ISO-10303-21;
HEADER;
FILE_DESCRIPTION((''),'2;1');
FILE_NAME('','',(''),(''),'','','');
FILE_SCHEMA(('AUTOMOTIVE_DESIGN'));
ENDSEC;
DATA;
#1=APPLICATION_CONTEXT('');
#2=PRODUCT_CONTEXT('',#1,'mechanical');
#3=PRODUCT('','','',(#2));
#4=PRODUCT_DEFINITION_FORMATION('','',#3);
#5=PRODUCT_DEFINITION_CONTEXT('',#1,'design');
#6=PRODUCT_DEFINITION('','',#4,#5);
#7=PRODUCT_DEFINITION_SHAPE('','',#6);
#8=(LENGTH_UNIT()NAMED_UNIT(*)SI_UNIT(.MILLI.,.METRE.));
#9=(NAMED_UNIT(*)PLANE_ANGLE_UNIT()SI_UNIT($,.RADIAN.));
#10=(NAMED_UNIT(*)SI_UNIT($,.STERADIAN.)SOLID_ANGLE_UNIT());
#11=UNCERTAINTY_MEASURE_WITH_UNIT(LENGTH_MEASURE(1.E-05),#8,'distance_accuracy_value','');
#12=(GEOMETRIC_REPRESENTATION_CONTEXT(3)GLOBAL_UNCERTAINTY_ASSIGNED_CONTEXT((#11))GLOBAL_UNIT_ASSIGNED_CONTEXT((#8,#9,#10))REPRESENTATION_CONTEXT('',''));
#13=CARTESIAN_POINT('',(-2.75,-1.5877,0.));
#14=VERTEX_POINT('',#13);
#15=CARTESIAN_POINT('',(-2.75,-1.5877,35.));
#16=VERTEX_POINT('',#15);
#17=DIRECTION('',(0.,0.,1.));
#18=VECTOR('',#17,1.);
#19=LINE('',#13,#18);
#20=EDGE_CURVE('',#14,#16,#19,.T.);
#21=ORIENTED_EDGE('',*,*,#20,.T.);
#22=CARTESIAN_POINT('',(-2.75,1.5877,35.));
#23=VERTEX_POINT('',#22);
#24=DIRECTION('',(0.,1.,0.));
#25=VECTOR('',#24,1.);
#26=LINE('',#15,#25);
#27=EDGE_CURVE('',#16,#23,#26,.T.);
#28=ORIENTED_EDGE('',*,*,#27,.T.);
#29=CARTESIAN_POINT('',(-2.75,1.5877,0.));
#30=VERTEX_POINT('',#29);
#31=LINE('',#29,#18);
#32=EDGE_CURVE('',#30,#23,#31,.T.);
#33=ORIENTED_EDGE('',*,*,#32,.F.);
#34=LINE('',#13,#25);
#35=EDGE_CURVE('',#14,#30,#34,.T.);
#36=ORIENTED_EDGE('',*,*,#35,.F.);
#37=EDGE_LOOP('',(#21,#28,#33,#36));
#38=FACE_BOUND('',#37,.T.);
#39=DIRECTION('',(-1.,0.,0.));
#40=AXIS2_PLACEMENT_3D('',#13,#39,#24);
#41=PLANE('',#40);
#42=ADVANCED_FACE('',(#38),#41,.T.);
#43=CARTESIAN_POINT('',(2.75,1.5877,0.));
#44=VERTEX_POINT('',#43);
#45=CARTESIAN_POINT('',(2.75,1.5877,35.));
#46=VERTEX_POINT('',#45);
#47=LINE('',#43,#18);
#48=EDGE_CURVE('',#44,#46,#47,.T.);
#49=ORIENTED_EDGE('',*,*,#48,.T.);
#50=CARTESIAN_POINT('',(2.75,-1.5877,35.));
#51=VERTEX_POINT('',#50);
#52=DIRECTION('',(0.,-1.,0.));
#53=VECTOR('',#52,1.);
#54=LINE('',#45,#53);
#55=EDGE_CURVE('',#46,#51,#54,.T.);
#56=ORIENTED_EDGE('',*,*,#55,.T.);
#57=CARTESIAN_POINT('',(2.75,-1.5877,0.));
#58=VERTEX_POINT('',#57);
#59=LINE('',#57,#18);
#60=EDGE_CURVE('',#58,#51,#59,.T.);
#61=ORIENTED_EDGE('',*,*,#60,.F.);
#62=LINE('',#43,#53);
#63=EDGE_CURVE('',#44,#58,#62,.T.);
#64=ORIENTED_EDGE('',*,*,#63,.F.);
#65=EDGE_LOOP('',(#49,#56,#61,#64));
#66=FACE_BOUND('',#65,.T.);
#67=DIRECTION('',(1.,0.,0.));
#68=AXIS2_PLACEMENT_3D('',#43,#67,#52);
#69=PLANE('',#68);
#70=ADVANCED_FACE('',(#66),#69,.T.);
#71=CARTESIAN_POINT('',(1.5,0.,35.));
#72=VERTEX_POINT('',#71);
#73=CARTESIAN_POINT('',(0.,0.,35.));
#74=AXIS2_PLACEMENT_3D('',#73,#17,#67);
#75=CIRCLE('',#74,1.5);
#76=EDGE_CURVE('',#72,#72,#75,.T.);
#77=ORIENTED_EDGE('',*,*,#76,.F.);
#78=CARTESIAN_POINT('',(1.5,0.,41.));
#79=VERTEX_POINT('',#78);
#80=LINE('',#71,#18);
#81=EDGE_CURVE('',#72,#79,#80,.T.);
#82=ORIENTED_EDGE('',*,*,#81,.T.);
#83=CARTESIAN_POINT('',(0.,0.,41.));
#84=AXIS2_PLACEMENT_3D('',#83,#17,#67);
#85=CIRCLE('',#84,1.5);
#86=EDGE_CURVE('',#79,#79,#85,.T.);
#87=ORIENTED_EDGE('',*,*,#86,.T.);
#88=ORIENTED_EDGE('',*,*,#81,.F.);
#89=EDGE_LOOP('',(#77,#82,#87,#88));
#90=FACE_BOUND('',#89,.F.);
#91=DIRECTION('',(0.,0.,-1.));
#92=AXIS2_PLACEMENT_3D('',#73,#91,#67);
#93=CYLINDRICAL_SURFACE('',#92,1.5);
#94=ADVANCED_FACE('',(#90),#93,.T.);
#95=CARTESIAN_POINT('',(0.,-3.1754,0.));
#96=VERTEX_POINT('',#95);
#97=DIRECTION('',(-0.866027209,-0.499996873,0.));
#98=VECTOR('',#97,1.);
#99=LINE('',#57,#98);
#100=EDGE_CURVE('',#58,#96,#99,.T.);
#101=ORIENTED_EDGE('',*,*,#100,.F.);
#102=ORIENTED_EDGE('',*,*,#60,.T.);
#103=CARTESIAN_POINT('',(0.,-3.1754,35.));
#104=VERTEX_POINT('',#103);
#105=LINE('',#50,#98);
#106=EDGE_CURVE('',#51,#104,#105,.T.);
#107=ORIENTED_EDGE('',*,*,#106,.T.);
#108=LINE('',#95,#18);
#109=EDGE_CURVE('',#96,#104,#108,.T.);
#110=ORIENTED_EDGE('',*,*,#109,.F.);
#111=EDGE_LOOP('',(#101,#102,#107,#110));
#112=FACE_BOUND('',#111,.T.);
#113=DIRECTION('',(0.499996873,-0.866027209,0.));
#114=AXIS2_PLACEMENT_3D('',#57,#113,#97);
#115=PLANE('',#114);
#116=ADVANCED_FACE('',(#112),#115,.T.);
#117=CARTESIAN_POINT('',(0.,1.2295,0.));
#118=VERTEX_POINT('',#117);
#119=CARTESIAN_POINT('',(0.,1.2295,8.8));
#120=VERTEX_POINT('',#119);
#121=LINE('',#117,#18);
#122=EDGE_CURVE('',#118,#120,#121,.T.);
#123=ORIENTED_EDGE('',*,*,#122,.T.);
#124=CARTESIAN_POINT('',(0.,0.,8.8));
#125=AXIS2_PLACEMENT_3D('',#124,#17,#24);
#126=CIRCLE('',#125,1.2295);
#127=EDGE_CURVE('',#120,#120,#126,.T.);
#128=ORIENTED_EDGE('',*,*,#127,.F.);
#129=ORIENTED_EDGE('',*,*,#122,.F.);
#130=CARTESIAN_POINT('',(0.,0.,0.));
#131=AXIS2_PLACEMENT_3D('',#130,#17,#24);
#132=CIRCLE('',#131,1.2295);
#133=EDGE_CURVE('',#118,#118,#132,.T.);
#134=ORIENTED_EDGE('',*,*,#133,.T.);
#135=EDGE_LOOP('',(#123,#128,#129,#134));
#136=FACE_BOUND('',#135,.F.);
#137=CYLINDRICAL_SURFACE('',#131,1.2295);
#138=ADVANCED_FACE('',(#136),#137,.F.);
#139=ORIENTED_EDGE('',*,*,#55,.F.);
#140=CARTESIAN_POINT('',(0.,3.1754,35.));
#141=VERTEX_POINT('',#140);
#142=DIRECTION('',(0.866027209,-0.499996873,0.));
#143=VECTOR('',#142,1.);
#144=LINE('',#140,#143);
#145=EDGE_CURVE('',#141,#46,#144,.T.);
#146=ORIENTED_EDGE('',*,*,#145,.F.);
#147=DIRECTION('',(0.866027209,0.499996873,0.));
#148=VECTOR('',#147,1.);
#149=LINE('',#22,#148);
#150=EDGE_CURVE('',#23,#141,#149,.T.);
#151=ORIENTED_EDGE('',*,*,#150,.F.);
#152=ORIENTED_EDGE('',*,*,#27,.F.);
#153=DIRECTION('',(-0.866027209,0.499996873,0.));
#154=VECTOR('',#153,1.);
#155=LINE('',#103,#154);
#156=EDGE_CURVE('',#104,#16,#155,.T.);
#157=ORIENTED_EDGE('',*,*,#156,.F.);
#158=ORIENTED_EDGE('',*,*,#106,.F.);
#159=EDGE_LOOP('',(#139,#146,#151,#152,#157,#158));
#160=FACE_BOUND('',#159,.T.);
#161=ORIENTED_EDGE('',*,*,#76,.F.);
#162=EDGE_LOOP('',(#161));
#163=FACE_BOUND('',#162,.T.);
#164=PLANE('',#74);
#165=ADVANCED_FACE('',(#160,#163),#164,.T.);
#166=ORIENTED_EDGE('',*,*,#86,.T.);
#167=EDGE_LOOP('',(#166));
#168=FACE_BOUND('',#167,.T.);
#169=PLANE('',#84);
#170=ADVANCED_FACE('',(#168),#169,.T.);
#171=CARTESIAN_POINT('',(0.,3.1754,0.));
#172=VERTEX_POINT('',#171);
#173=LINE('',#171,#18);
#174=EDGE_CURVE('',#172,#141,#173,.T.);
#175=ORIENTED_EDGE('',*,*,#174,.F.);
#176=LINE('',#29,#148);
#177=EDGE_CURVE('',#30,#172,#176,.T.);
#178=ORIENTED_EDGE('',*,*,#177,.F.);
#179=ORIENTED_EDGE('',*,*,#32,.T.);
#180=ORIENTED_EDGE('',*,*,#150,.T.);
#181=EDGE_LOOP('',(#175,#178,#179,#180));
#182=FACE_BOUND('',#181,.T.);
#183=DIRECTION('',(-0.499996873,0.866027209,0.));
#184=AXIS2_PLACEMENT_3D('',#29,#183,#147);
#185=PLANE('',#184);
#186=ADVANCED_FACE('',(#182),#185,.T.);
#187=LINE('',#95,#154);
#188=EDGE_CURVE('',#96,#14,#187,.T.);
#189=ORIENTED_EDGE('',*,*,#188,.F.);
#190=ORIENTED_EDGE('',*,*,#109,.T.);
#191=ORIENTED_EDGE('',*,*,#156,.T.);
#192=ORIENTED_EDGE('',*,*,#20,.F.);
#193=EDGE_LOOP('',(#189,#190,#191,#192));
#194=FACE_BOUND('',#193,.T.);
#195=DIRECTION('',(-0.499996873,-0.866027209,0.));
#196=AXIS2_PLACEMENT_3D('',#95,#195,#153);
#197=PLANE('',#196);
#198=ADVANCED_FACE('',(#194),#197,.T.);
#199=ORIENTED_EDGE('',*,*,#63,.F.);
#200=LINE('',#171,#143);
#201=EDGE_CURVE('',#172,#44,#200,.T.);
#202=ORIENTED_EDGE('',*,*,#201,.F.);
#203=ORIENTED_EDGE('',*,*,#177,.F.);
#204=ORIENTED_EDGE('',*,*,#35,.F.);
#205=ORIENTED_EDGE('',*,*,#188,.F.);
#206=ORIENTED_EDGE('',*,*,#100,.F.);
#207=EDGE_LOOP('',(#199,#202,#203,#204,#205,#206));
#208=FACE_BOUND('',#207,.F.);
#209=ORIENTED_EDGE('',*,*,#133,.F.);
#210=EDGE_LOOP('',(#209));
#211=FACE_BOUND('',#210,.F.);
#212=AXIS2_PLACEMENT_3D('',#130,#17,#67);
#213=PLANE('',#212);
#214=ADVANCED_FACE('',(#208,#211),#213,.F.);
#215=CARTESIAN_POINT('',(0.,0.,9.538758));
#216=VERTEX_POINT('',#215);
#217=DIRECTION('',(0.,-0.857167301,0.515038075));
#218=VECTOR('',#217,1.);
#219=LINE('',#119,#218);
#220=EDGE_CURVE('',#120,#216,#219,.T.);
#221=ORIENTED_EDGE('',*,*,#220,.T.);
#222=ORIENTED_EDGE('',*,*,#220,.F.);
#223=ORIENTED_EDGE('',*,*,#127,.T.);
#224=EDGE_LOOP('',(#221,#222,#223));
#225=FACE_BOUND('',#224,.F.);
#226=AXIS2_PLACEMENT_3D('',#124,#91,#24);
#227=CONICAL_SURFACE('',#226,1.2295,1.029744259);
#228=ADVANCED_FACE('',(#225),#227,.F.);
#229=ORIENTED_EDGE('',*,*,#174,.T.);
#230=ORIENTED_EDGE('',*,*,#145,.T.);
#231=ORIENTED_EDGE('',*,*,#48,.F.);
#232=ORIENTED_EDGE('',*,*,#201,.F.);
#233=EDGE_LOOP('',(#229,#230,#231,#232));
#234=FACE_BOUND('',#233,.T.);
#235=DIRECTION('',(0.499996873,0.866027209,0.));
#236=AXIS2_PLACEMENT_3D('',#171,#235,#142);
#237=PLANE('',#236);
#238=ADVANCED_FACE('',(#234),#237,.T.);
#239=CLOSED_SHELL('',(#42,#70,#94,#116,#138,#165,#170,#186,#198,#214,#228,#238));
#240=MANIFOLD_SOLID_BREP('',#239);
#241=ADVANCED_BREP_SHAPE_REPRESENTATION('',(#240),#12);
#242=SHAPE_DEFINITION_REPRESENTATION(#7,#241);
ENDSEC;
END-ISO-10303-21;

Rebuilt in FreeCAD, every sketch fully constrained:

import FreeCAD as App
import Part
import Sketcher
from FreeCAD import Vector
Q = App.Units.Quantity

doc = App.newDocument("Part")
body = doc.addObject("PartDesign::Body", "Body")

sketch1 = body.newObject("Sketcher::SketchObject", "Sketch")
sketch1.AttachmentSupport = (doc.getObject("XY_Plane"), [""])
sketch1.MapMode = "FlatFace"
sketch1.addGeometry([
    Part.LineSegment(Vector(2.8, 1.6, 0), Vector(0, 3.2, 0)),
    Part.LineSegment(Vector(0, 3.2, 0), Vector(-2.8, 1.6, 0)),
    Part.LineSegment(Vector(-2.8, 1.6, 0), Vector(-2.8, -1.6, 0)),
    Part.LineSegment(Vector(-2.8, -1.6, 0), Vector(0, -3.2, 0)),
    Part.LineSegment(Vector(0, -3.2, 0), Vector(2.8, -1.6, 0)),
    Part.LineSegment(Vector(2.8, -1.6, 0), Vector(2.8, 1.6, 0)),
], False)
sketch1.addConstraint([
    Sketcher.Constraint("Coincident", 0, 2, 1, 1),
    Sketcher.Constraint("Coincident", 1, 2, 2, 1),
    Sketcher.Constraint("Coincident", 2, 2, 3, 1),
    Sketcher.Constraint("Coincident", 3, 2, 4, 1),
    Sketcher.Constraint("Coincident", 4, 2, 5, 1),
    Sketcher.Constraint("Coincident", 5, 2, 0, 1),
    Sketcher.Constraint("Vertical", 2),
    Sketcher.Constraint("Vertical", 5),
    Sketcher.Constraint("Symmetric", 0, 2, 3, 2, -1, 1),
    Sketcher.Constraint("Symmetric", 1, 2, 4, 2, -1, 1),
    Sketcher.Constraint("PointOnObject", 0, 2, -2),
    Sketcher.Constraint("Parallel", 0, 3),
    Sketcher.Constraint("Horizontal", 2, 2, 4, 2),
    Sketcher.Constraint("DistanceX", 2, 2, 4, 2, Q("5.5 mm")),
    Sketcher.Constraint("Angle", 0, Q("150.0002 deg")),
    Sketcher.Constraint("DistanceY", 2, 2, 2, 1, Q("3.1754 mm")),
])
pad1 = body.newObject("PartDesign::Pad", "Pad")
pad1.Profile = sketch1
pad1.Length = 35

sketch2 = body.newObject("Sketcher::SketchObject", "Sketch001")
sketch2.AttachmentSupport = (doc.getObject("XY_Plane"), [""])
sketch2.MapMode = "FlatFace"
sketch2.AttachmentOffset = App.Placement(Vector(0, 0, 35), App.Rotation())
sketch2.addGeometry(Part.Circle(Vector(0, 0, 0), Vector(0, 0, 1), 1.5), False)
sketch2.addConstraint([
    Sketcher.Constraint("Coincident", 0, 3, -1, 1),
    Sketcher.Constraint("Diameter", 0, Q("3 mm")),
])
pad2 = body.newObject("PartDesign::Pad", "Pad001")
pad2.Profile = sketch2
pad2.Length = 6

sketch3 = body.newObject("Sketcher::SketchObject", "Sketch002")
sketch3.AttachmentSupport = (doc.getObject("XY_Plane"), [""])
sketch3.MapMode = "FlatFace"
sketch3.addGeometry(Part.Circle(Vector(0, 0, 0), Vector(0, 0, 1), 1.2), False)
sketch3.addConstraint([
    Sketcher.Constraint("Coincident", 0, 3, -1, 1),
    Sketcher.Constraint("Diameter", 0, Q("2.459 mm")),
])
doc.recompute()
hole = body.newObject("PartDesign::Hole", "Hole")
hole.Profile = sketch3
hole.ThreadType = "None"
hole.Diameter = 2.459
hole.DepthType = "Dimension"
hole.Depth = 8.8
hole.DrillPoint = "Angled"
hole.DrillPointAngle = 118
hole.Reversed = True

doc.recompute()
